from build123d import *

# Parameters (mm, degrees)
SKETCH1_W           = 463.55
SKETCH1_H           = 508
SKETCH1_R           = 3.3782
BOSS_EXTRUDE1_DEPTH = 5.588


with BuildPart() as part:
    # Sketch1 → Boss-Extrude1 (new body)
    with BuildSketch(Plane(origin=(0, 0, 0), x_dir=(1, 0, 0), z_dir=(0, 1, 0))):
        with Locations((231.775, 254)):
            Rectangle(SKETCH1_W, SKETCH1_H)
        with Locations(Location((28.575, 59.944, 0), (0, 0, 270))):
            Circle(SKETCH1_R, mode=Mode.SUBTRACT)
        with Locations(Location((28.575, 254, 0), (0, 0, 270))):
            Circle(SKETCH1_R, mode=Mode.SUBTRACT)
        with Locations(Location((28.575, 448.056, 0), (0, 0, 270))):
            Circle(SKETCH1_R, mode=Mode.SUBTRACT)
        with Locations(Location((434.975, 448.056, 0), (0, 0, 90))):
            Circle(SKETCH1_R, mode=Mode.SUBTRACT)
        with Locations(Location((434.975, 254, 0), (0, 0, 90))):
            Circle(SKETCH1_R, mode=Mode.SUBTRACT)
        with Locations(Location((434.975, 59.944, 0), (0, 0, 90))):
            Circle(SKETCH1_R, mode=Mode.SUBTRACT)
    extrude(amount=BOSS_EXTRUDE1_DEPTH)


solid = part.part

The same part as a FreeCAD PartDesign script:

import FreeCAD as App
import Part
import Sketcher

V = App.Vector
Q = App.Units.Quantity


def add_polygon(sketch, points):
    """Adds a closed chain of lines whose ends are joined by coincident constraints."""
    first, n = sketch.GeometryCount, len(points)
    for a, b in zip(points, points[1:] + points[:1]):
        sketch.addGeometry(Part.LineSegment(App.Vector(*a, 0), App.Vector(*b, 0)), False)
    for i in range(n):
        sketch.addConstraint(Sketcher.Constraint("Coincident", first + i, 2, first + (i + 1) % n, 1))

doc = App.newDocument("Part")
body = doc.addObject("PartDesign::Body", "Body")

# Sketch on XZ plane
sketch1 = doc.addObject("Sketcher::SketchObject", "Sketch")
body.addObject(sketch1)
sketch1.AttachmentSupport = (doc.XZ_Plane, [""])
sketch1.MapMode = "FlatFace"
add_polygon(sketch1, [(0, -508), (0, 0), (463.55, 0), (463.55, -508)])  # lines 0-3
sketch1.addGeometry(Part.Circle(V(28.575, -59.944, 0), V(0, 0, 1), 3.3782), False)  # 4
sketch1.addGeometry(Part.Circle(V(434.975, -59.944, 0), V(0, 0, 1), 3.3782), False)  # 5
sketch1.addGeometry(Part.Circle(V(28.575, -254, 0), V(0, 0, 1), 3.3782), False)  # 6
sketch1.addGeometry(Part.Circle(V(28.575, -448.056, 0), V(0, 0, 1), 3.3782), False)  # 7
sketch1.addGeometry(Part.Circle(V(434.975, -254, 0), V(0, 0, 1), 3.3782), False)  # 8
sketch1.addGeometry(Part.Circle(V(434.975, -448.056, 0), V(0, 0, 1), 3.3782), False)  # 9
sketch1.addConstraint([
    Sketcher.Constraint("Vertical", 0),
    Sketcher.Constraint("Horizontal", 1),
    Sketcher.Constraint("Vertical", 2),
    Sketcher.Constraint("Horizontal", 3),
    Sketcher.Constraint("Coincident", 0, 2, -1, 1),
    Sketcher.Constraint("Equal", 4, 5),
    Sketcher.Constraint("Equal", 5, 6),
    Sketcher.Constraint("Equal", 6, 7),
    Sketcher.Constraint("Equal", 7, 8),
    Sketcher.Constraint("Equal", 8, 9),
    Sketcher.Constraint("Horizontal", 4, 3, 5, 3),
    Sketcher.Constraint("Horizontal", 6, 3, 8, 3),
    Sketcher.Constraint("Horizontal", 7, 3, 9, 3),
    Sketcher.Constraint("Vertical", 4, 3, 6, 3),
    Sketcher.Constraint("Vertical", 6, 3, 7, 3),
    Sketcher.Constraint("Vertical", 5, 3, 8, 3),
    Sketcher.Constraint("Vertical", 8, 3, 9, 3),
    Sketcher.Constraint("DistanceY", 0, 1, 0, 2, Q("20 in")),
    Sketcher.Constraint("Diameter", 4, Q("0.266 in")),
    Sketcher.Constraint("DistanceY", 6, 3, -1, 1, Q("10 in")),
    Sketcher.Constraint("DistanceX", 4, 3, 5, 3, Q("16 in")),
    Sketcher.Constraint("DistanceX", 1, 1, 1, 2, Q("18.25 in")),
    Sketcher.Constraint("DistanceY", 4, 3, -1, 1, Q("2.36 in")),
    Sketcher.Constraint("DistanceY", 7, 3, -1, 1, Q("17.64 in")),
    Sketcher.Constraint("DistanceX", -1, 1, 4, 3, Q("1.125 in")),
])
pad1 = doc.addObject("PartDesign::Pad", "Pad")
body.addObject(pad1)
pad1.Profile = sketch1
pad1.Length = Q("0.22 in")
pad1.Reversed = True

doc.recompute()
